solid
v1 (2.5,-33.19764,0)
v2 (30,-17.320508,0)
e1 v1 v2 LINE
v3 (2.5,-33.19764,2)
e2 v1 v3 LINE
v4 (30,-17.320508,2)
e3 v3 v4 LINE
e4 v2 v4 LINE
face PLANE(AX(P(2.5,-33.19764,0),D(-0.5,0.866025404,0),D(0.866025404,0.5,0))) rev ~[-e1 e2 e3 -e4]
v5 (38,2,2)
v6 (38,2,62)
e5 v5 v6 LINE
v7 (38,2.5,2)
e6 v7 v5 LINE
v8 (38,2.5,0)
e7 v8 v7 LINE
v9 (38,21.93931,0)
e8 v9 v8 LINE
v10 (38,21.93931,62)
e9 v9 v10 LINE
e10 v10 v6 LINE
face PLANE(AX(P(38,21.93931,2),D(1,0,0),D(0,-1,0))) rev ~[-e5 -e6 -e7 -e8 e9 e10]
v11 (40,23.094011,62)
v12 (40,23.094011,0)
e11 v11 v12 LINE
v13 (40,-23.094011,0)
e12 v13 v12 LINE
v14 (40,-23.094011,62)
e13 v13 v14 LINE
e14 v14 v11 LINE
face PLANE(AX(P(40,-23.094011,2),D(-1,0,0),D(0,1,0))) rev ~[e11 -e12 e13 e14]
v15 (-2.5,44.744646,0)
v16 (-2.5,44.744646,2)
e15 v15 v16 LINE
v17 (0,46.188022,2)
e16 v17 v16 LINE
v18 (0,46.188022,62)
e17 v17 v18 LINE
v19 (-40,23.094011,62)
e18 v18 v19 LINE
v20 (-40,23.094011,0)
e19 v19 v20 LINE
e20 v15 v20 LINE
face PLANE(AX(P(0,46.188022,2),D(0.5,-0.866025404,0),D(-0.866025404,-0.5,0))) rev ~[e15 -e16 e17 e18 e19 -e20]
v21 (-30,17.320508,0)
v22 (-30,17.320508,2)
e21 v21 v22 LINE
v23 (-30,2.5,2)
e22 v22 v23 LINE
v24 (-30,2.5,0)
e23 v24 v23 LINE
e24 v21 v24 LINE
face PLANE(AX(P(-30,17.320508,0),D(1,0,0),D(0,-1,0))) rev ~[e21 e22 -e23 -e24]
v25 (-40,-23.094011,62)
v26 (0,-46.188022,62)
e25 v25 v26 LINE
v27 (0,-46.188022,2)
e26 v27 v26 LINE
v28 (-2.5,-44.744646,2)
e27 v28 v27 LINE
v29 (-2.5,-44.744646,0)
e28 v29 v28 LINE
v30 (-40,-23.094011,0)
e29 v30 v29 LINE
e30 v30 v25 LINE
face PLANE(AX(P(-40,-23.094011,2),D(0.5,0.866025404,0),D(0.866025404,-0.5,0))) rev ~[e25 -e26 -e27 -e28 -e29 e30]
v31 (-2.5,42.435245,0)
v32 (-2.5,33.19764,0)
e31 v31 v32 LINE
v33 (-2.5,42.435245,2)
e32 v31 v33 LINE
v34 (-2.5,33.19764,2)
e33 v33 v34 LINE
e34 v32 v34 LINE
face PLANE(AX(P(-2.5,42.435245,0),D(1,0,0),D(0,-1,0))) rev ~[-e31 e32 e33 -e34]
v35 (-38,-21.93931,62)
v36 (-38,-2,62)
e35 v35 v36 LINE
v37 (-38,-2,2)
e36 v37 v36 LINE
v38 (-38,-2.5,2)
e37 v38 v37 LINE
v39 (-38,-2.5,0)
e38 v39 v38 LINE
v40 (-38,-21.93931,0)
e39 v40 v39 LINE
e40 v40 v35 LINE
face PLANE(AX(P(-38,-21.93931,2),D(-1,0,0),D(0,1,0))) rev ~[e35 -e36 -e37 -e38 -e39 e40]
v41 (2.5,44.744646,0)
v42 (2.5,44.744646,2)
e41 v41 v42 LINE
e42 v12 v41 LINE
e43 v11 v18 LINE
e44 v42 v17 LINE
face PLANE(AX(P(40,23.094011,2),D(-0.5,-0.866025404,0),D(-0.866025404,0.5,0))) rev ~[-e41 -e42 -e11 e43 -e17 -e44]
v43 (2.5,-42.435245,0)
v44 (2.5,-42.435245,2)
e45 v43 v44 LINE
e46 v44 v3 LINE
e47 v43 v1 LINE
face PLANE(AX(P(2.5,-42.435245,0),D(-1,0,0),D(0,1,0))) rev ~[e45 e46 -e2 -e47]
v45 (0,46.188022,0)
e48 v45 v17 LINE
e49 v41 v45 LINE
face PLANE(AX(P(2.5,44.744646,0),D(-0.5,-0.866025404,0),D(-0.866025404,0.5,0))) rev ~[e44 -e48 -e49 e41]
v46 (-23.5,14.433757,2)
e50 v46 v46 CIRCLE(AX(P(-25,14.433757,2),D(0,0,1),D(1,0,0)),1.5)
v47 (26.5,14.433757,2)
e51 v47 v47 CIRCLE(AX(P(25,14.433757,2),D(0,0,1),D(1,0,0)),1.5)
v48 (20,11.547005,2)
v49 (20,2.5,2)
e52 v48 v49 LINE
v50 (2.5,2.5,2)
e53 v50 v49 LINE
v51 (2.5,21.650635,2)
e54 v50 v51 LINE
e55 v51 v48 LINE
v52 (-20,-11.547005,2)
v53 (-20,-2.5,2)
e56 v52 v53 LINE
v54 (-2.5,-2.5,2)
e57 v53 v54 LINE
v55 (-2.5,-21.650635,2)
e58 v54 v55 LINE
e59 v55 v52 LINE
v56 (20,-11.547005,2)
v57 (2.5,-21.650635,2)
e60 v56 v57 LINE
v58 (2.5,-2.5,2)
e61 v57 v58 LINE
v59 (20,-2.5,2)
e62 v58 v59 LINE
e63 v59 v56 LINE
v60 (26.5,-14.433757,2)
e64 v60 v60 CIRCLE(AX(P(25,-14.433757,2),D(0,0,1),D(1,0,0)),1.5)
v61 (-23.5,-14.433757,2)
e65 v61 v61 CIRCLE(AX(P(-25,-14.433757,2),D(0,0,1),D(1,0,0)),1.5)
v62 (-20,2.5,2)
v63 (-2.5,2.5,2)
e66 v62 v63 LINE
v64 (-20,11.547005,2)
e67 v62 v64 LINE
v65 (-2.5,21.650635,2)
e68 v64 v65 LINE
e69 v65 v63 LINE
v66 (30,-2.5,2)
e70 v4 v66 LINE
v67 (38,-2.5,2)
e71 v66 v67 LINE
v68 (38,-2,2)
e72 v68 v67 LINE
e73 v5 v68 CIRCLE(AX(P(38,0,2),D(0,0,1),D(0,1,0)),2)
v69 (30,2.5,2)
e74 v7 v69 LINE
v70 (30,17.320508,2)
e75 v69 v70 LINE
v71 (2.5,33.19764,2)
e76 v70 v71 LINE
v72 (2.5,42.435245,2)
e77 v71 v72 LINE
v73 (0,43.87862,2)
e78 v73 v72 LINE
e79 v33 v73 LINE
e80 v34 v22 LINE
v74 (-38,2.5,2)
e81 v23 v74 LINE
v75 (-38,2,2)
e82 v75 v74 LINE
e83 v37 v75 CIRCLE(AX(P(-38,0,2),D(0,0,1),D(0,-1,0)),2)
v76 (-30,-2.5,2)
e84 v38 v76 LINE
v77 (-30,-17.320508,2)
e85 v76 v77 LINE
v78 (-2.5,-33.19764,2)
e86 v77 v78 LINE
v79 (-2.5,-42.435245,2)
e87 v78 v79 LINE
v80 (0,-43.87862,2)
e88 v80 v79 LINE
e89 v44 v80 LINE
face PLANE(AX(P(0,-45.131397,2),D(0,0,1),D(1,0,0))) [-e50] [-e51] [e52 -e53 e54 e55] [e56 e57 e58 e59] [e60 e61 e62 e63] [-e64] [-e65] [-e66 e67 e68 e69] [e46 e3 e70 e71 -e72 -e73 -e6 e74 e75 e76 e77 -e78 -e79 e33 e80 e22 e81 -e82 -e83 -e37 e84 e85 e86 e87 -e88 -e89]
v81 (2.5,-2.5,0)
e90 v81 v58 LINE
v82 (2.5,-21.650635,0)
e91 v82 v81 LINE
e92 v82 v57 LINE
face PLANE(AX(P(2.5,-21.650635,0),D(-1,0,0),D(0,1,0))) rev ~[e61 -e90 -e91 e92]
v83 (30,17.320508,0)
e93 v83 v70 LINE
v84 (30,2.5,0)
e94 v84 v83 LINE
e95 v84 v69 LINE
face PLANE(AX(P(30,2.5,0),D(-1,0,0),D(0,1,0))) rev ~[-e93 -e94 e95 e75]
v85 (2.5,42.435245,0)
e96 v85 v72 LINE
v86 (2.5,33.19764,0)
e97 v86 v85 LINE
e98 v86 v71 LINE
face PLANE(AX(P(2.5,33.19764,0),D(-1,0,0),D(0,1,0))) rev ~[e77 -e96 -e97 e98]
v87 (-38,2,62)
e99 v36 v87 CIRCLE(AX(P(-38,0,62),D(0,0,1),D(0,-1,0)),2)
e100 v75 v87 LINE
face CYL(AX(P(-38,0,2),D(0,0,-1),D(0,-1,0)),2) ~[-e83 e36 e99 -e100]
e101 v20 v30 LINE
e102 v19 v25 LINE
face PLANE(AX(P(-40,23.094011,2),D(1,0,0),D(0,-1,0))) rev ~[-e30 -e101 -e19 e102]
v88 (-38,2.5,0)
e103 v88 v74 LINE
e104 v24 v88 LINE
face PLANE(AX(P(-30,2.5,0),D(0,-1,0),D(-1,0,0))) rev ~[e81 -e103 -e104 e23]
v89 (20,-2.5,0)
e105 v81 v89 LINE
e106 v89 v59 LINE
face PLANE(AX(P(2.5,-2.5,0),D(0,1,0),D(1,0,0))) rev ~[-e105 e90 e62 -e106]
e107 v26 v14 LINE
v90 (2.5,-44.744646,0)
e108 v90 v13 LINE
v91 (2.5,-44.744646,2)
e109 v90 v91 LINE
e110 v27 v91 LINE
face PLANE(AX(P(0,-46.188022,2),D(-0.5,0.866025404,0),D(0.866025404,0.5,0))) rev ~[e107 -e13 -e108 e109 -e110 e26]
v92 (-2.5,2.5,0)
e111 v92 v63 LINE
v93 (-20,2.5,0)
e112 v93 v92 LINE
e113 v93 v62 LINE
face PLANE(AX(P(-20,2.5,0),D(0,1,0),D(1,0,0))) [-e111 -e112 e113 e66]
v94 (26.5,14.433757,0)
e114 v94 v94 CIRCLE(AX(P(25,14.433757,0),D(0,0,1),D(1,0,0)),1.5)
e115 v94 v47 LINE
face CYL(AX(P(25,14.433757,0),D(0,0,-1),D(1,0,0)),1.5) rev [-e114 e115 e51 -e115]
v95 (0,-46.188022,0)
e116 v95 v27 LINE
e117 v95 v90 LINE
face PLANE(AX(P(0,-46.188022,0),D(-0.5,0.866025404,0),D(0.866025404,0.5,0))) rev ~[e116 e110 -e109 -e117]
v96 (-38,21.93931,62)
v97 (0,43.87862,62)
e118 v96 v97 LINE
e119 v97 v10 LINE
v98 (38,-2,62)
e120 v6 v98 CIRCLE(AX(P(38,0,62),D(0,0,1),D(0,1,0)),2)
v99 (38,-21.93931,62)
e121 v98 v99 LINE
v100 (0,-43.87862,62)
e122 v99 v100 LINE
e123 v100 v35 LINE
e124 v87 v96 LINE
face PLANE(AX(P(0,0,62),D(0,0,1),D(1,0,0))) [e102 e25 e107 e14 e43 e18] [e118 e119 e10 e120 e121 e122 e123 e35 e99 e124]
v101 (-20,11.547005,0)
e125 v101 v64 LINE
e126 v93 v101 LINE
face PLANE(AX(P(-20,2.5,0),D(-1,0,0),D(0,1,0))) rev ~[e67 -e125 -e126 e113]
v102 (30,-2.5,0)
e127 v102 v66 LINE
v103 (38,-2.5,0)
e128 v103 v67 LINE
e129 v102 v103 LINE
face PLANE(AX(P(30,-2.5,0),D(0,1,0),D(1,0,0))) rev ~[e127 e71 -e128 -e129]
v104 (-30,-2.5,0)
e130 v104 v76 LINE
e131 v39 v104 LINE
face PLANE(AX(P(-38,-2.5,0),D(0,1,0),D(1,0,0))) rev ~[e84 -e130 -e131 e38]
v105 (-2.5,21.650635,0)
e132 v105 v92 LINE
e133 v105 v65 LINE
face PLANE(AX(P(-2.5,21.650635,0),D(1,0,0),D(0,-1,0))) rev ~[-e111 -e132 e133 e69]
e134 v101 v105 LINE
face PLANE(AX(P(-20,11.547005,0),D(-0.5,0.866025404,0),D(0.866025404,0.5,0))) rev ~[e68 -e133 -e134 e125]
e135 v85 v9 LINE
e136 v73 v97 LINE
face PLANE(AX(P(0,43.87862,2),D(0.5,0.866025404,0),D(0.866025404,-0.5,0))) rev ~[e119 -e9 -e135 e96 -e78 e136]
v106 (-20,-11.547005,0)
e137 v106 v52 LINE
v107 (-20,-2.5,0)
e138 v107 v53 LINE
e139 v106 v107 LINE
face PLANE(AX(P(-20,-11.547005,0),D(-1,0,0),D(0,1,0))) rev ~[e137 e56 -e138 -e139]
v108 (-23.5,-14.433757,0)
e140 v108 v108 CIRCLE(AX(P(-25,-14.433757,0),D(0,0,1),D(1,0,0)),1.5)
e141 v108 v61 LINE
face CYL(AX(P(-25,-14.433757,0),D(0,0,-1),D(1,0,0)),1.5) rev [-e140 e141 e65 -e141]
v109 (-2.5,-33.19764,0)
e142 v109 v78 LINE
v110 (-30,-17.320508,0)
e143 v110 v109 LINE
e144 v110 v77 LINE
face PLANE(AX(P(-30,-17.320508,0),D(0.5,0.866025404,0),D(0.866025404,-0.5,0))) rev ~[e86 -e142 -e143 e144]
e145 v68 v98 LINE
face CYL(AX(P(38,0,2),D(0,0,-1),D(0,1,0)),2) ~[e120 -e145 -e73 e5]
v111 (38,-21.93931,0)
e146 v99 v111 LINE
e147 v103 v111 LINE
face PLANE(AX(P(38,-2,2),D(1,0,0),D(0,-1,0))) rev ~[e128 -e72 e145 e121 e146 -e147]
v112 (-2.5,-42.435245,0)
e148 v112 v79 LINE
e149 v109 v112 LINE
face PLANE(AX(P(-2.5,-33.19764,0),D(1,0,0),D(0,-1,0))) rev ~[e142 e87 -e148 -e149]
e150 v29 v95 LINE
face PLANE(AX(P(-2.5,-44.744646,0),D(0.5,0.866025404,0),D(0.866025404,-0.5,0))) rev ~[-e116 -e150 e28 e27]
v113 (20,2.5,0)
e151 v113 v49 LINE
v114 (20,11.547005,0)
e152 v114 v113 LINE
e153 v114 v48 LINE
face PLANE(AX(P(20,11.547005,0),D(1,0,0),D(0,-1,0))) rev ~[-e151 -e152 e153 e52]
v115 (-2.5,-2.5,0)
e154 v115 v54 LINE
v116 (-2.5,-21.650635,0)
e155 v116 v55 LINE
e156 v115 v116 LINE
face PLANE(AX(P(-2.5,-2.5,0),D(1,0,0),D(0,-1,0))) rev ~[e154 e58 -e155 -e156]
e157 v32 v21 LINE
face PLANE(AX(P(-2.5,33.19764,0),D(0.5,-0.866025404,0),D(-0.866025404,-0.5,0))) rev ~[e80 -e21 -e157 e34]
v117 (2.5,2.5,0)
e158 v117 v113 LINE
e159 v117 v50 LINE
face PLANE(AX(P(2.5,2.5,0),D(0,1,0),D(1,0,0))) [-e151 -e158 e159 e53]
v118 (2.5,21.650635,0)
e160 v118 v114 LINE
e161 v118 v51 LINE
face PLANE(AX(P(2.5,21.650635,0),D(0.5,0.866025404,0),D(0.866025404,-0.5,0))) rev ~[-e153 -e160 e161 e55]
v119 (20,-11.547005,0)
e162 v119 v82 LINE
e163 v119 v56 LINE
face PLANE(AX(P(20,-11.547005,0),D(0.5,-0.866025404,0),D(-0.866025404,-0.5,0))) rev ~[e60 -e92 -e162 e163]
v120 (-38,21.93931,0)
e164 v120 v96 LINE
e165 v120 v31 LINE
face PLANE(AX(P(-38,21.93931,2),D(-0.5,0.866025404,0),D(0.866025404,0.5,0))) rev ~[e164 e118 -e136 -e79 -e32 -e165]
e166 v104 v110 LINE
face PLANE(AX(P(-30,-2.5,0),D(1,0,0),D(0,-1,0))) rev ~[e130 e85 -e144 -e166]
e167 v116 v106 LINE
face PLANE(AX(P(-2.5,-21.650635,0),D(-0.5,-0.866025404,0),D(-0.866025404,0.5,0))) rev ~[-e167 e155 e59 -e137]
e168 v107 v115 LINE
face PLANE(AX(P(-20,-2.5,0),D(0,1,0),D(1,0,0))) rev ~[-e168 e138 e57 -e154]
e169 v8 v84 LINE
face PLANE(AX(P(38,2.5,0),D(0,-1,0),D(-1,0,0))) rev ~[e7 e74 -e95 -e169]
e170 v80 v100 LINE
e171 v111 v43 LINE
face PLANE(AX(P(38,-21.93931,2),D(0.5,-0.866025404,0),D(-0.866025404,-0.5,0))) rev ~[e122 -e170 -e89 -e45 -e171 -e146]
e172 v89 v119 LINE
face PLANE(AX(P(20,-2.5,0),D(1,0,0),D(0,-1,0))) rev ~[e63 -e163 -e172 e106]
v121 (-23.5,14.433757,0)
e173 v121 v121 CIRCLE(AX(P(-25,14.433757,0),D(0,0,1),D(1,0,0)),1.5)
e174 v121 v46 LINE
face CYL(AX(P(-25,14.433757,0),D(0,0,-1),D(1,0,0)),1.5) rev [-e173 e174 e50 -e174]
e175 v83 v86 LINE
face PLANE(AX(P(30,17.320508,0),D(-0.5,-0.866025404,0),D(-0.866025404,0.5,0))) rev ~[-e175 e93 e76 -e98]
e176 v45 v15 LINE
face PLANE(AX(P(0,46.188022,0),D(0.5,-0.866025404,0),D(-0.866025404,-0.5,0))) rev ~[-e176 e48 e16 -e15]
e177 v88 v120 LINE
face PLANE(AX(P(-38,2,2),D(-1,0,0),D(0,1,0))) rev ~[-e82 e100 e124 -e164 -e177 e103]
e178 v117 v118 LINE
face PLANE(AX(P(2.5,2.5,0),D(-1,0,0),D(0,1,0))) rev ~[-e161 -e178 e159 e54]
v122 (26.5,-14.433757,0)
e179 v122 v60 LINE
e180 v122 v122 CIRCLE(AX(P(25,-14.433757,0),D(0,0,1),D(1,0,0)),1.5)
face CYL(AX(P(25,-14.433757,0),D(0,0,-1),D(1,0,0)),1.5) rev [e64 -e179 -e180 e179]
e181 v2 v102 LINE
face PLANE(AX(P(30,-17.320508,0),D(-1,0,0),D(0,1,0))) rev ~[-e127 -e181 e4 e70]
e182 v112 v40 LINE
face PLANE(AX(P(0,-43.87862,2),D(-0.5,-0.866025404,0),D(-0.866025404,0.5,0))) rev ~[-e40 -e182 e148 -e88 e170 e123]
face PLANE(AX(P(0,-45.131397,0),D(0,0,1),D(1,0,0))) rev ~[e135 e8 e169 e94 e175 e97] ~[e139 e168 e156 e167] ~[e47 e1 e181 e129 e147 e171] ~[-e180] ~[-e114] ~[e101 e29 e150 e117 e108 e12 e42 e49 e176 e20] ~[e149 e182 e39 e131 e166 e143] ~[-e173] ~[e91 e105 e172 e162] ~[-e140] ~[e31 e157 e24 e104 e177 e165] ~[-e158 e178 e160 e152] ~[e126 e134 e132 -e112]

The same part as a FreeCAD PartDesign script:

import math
import FreeCAD as App
import Part
import Sketcher

V = App.Vector
Q = App.Units.Quantity


def add_polygon(sketch, points):
    """Adds a closed chain of lines whose ends are joined by coincident constraints."""
    first, n = sketch.GeometryCount, len(points)
    for a, b in zip(points, points[1:] + points[:1]):
        sketch.addGeometry(Part.LineSegment(App.Vector(*a, 0), App.Vector(*b, 0)), False)
    for i in range(n):
        sketch.addConstraint(Sketcher.Constraint("Coincident", first + i, 2, first + (i + 1) % n, 1))

doc = App.newDocument("Part")
body = doc.addObject("PartDesign::Body", "Body")

# Sketch on XY plane
sketch1 = body.newObject("Sketcher::SketchObject", "Sketch")
sketch1.AttachmentSupport = (doc.getObject("XY_Plane"), [""])
sketch1.MapMode = "FlatFace"
add_polygon(sketch1, [(0, -46.2), (2.5, -44.7), (40, -23.1), (40, 23.1), (2.5, 44.7), (0, 46.2), (-2.5, 44.7), (-40, 23.1), (-40, -23.1), (-2.5, -44.7)])  # lines 0-9
sketch1.addGeometry(Part.Circle(V(-25, -14.4, 0), V(0, 0, 1), 1.5), False)  # 10
add_polygon(sketch1, [(-20, -2.5), (-2.5, -2.5), (-2.5, -21.7), (-20, -11.5)])  # lines 11-14
add_polygon(sketch1, [(-30, -2.5), (-30, -17.3), (-2.5, -33.2), (-2.5, -42.4), (-38, -21.9), (-38, -2.5)])  # lines 15-20
add_polygon(sketch1, [(2.5, -33.2), (30, -17.3), (30, -2.5), (38, -2.5), (38, -21.9), (2.5, -42.4)])  # lines 21-26
add_polygon(sketch1, [(2.5, -21.7), (2.5, -2.5), (20, -2.5), (20, -11.5)])  # lines 27-30
sketch1.addGeometry(Part.Circle(V(25, -14.4, 0), V(0, 0, 1), 1.5), False)  # 31
sketch1.addGeometry(Part.Circle(V(-25, 14.4, 0), V(0, 0, 1), 1.5), False)  # 32
add_polygon(sketch1, [(-2.5, 2.5), (-20, 2.5), (-20, 11.5), (-2.5, 21.7)])  # lines 33-36
add_polygon(sketch1, [(-30, 17.3), (-30, 2.5), (-38, 2.5), (-38, 21.9), (-2.5, 42.4), (-2.5, 33.2)])  # lines 37-42
add_polygon(sketch1, [(20, 2.5), (2.5, 2.5), (2.5, 21.7), (20, 11.5)])  # lines 43-46
sketch1.addGeometry(Part.Circle(V(25, 14.4, 0), V(0, 0, 1), 1.5), False)  # 47
add_polygon(sketch1, [(2.5, 42.4), (38, 21.9), (38, 2.5), (30, 2.5), (30, 17.3), (2.5, 33.2)])  # lines 48-53
sketch1.addConstraint([
    Sketcher.Constraint("Vertical", 2),
    Sketcher.Constraint("Vertical", 7),
    Sketcher.Constraint("Horizontal", 11),
    Sketcher.Constraint("Vertical", 12),
    Sketcher.Constraint("Vertical", 14),
    Sketcher.Constraint("Vertical", 15),
    Sketcher.Constraint("Vertical", 17),
    Sketcher.Constraint("Vertical", 19),
    Sketcher.Constraint("Horizontal", 20),
    Sketcher.Constraint("Vertical", 22),
    Sketcher.Constraint("Horizontal", 23),
    Sketcher.Constraint("Vertical", 24),
    Sketcher.Constraint("Vertical", 26),
    Sketcher.Constraint("Vertical", 27),
    Sketcher.Constraint("Horizontal", 28),
    Sketcher.Constraint("Vertical", 29),
    Sketcher.Constraint("Horizontal", 33),
    Sketcher.Constraint("Vertical", 34),
    Sketcher.Constraint("Vertical", 36),
    Sketcher.Constraint("Vertical", 37),
    Sketcher.Constraint("Horizontal", 38),
    Sketcher.Constraint("Vertical", 39),
    Sketcher.Constraint("Vertical", 41),
    Sketcher.Constraint("Horizontal", 43),
    Sketcher.Constraint("Vertical", 44),
    Sketcher.Constraint("Vertical", 46),
    Sketcher.Constraint("Vertical", 49),
    Sketcher.Constraint("Horizontal", 50),
    Sketcher.Constraint("Vertical", 51),
    Sketcher.Constraint("Vertical", 53),
    Sketcher.Constraint("Equal", 10, 31),
    Sketcher.Constraint("Equal", 31, 32),
    Sketcher.Constraint("Equal", 32, 47),
    Sketcher.Constraint("Symmetric", 31, 3, 32, 3, -1, 1),
    Sketcher.Constraint("Symmetric", 10, 3, 47, 3, -1, 1),
    Sketcher.Constraint("Symmetric", 0, 2, 5, 2, -1, 1),
    Sketcher.Constraint("Symmetric", 1, 2, 6, 2, -1, 1),
    Sketcher.Constraint("Symmetric", 3, 2, 8, 2, -1, 1),
    Sketcher.Constraint("Symmetric", 4, 2, 9, 2, -1, 1),
    Sketcher.Constraint("Symmetric", 28, 2, 33, 2, -1, 1),
    Sketcher.Constraint("Symmetric", 30, 2, 35, 2, -1, 1),
    Sketcher.Constraint("Symmetric", 22, 2, 37, 2, -1, 1),
    Sketcher.Constraint("Symmetric", 24, 2, 39, 2, -1, 1),
    Sketcher.Constraint("Symmetric", 25, 2, 40, 2, -1, 1),
    Sketcher.Constraint("Symmetric", 11, 2, 43, 2, -1, 1),
    Sketcher.Constraint("Symmetric", 13, 2, 45, 2, -1, 1),
    Sketcher.Constraint("Symmetric", 18, 2, 48, 2, -1, 1),
    Sketcher.Constraint("Symmetric", 20, 2, 50, 2, -1, 1),
    Sketcher.Constraint("Symmetric", 16, 2, 52, 2, -1, 1),
    Sketcher.Constraint("Symmetric", 10, 3, 31, 3, -2),
    Sketcher.Constraint("Symmetric", 3, 2, 5, 2, -2),
    Sketcher.Constraint("Symmetric", 15, 2, 21, 2, -2),
    Sketcher.Constraint("Symmetric", 19, 2, 23, 2, -2),
    Sketcher.Constraint("Symmetric", 17, 2, 25, 2, -2),
    Sketcher.Constraint("Symmetric", 11, 2, 27, 2, -2),
    Sketcher.Constraint("Symmetric", 13, 2, 29, 2, -2),
    Sketcher.Constraint("PointOnObject", 4, 2, -2),
    Sketcher.Constraint("Parallel", 0, 1),
    Sketcher.Constraint("Parallel", 3, 4),
    Sketcher.Constraint("Parallel", 4, 8),
    Sketcher.Constraint("Parallel", 9, 13),
    Sketcher.Constraint("Parallel", 13, 16),
    Sketcher.Constraint("Parallel", 16, 18),
    Sketcher.Constraint("Parallel", 6, 21),
    Sketcher.Constraint("Parallel", 21, 25),
    Sketcher.Constraint("Parallel", 25, 30),
    Sketcher.Constraint("Parallel", 30, 35),
    Sketcher.Constraint("Parallel", 40, 42),
    Sketcher.Constraint("Parallel", 18, 45),
    Sketcher.Constraint("Parallel", 45, 48),
    Sketcher.Constraint("Parallel", 48, 52),
    Sketcher.Constraint("Horizontal", 14, 2, 19, 2),
    Sketcher.Constraint("Horizontal", 42, 2, 51, 2),
    Sketcher.Constraint("Vertical", 8, 2, 11, 2),
    Sketcher.Constraint("Vertical", 12, 2, 16, 2),
    Sketcher.Constraint("Diameter", 10, 3.0),
    Sketcher.Constraint("DistanceX", 20, 1, 20, 2, 8.0),
    Sketcher.Constraint("Angle", 0, Q("30 deg")),
    Sketcher.Constraint("DistanceX", 11, 1, 11, 2, 17.5),
    Sketcher.Constraint("DistanceX", 10, 3, -1, 1, 25.0),
    Sketcher.Constraint("DistanceX", -1, 1, 1, 2, 40.0),
    Sketcher.Constraint("DistanceX", 13, 2, -1, 1, 20.0),
    Sketcher.Constraint("DistanceX", 15, 2, -1, 1, 30.0),
    Sketcher.Constraint("DistanceY", 14, 2, 33, 2, 5.0),
    Sketcher.Constraint("DistanceY", 2, 1, 2, 2, 46.188022),
    Sketcher.Constraint("DistanceY", 15, 2, 15, 1, 14.820508),
    Sketcher.Constraint("DistanceY", 19, 1, 19, 2, 19.43931),
    Sketcher.Constraint("DistanceY", 12, 2, 12, 1, 19.150635),
    Sketcher.Constraint("DistanceY", 0, 2, 31, 3, 30.310889),
])
pad1 = body.newObject("PartDesign::Pad", "Pad")
pad1.Profile = sketch1
pad1.Length = 2

# Sketch on XY plane
sketch2 = body.newObject("Sketcher::SketchObject", "Sketch001")
sketch2.AttachmentSupport = (doc.getObject("XY_Plane"), [""])
sketch2.MapMode = "FlatFace"
sketch2.AttachmentOffset = App.Placement(V(0, 0, 2), App.Rotation())
add_polygon(sketch2, [(-40, 23.1), (-40, -23.1), (0, -46.2), (40, -23.1), (40, 23.1), (0, 46.2)])  # lines 0-5
sketch2.addGeometry(Part.LineSegment(V(38, -21.9, 0), V(0, -43.9, 0)), False)  # 6
sketch2.addGeometry(Part.LineSegment(V(0, -43.9, 0), V(-38, -21.9, 0)), False)  # 7
sketch2.addGeometry(Part.LineSegment(V(-38, -21.9, 0), V(-38, -2, 0)), False)  # 8
sketch2.addGeometry(Part.ArcOfCircle(Part.Circle(V(-38, 0, 0), V(0, 0, 1), 2), math.radians(-90), math.radians(90)), False)  # 9
sketch2.addGeometry(Part.LineSegment(V(-38, 2, 0), V(-38, 21.9, 0)), False)  # 10
sketch2.addGeometry(Part.LineSegment(V(-38, 21.9, 0), V(0, 43.9, 0)), False)  # 11
sketch2.addGeometry(Part.LineSegment(V(0, 43.9, 0), V(38, 21.9, 0)), False)  # 12
sketch2.addGeometry(Part.LineSegment(V(38, 21.9, 0), V(38, 2, 0)), False)  # 13
sketch2.addGeometry(Part.ArcOfCircle(Part.Circle(V(38, 0, 0), V(0, 0, 1), 2), math.radians(90), math.radians(270)), False)  # 14
sketch2.addGeometry(Part.LineSegment(V(38, -2, 0), V(38, -21.9, 0)), False)  # 15
sketch2.addConstraint([
    Sketcher.Constraint("Coincident", 6, 2, 7, 1),
    Sketcher.Constraint("Coincident", 7, 2, 8, 1),
    Sketcher.Constraint("Coincident", 8, 2, 9, 1),
    Sketcher.Constraint("Coincident", 9, 2, 10, 1),
    Sketcher.Constraint("Coincident", 10, 2, 11, 1),
    Sketcher.Constraint("Coincident", 11, 2, 12, 1),
    Sketcher.Constraint("Coincident", 12, 2, 13, 1),
    Sketcher.Constraint("Coincident", 13, 2, 14, 1),
    Sketcher.Constraint("Coincident", 14, 2, 15, 1),
    Sketcher.Constraint("Coincident", 15, 2, 6, 1),
    Sketcher.Constraint("Vertical", 0),
    Sketcher.Constraint("Vertical", 3),
    Sketcher.Constraint("Vertical", 8),
    Sketcher.Constraint("Vertical", 10),
    Sketcher.Constraint("Vertical", 13),
    Sketcher.Constraint("Vertical", 15),
    Sketcher.Constraint("Equal", 9, 14),
    Sketcher.Constraint("Symmetric", 9, 3, 14, 3, -1, 1),
    Sketcher.Constraint("Symmetric", 0, 2, 3, 2, -1, 1),
    Sketcher.Constraint("Symmetric", 1, 2, 4, 2, -1, 1),
    Sketcher.Constraint("Symmetric", 6, 2, 11, 2, -1, 1),
    Sketcher.Constraint("Symmetric", 7, 2, 12, 2, -1, 1),
    Sketcher.Constraint("Symmetric", 10, 2, 15, 2, -1, 1),
    Sketcher.Constraint("Symmetric", 10, 2, 12, 2, -2),
    Sketcher.Constraint("PointOnObject", 9, 3, -1),
    Sketcher.Constraint("PointOnObject", 1, 2, -2),
    Sketcher.Constraint("PointOnObject", 6, 2, -2),
    Sketcher.Constraint("Parallel", 2, 5),
    Sketcher.Constraint("Parallel", 5, 6),
    Sketcher.Constraint("Parallel", 4, 7),
    Sketcher.Constraint("Vertical", 9, 3, 7, 2),
    Sketcher.Constraint("Radius", 9, 2.0),
    Sketcher.Constraint("Angle", 1, Q("-30 deg")),
    Sketcher.Constraint("DistanceX", 9, 3, -1, 1, 38.0),
    Sketcher.Constraint("DistanceX", 0, 2, -1, 1, 40.0),
    Sketcher.Constraint("DistanceY", 0, 2, 0, 1, 46.188022),
    Sketcher.Constraint("DistanceY", 8, 1, 8, 2, 19.93931),
])
pad2 = body.newObject("PartDesign::Pad", "Pad001")
pad2.Profile = sketch2
pad2.Length = 60

doc.recompute()
